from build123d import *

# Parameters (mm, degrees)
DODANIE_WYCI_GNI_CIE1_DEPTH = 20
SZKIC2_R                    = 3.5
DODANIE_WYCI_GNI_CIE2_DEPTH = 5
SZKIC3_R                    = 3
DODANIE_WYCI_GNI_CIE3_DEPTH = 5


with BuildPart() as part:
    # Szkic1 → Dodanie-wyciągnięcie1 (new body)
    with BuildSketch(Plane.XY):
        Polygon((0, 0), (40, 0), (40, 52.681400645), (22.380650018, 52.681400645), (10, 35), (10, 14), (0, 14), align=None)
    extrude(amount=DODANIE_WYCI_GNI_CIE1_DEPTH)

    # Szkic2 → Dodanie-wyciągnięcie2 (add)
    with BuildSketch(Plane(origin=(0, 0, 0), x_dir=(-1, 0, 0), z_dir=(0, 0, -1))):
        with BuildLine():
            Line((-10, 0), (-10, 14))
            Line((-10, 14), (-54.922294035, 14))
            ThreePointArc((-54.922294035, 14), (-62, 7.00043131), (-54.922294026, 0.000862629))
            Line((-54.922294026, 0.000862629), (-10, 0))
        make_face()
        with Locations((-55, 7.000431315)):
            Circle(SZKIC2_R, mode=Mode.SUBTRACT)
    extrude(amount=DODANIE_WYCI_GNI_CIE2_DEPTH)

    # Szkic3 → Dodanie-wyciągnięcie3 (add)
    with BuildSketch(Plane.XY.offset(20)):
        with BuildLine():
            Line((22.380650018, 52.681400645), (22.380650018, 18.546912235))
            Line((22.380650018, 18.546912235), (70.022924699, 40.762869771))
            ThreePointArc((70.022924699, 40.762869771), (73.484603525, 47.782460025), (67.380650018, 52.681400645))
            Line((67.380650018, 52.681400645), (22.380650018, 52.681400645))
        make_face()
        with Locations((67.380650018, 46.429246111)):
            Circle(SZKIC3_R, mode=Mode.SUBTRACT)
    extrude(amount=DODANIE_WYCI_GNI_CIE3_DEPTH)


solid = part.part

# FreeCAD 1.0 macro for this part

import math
import FreeCAD as App
import Part
import Sketcher
from FreeCAD import Vector
Q = App.Units.Quantity

doc = App.newDocument("Part")
body = doc.addObject("PartDesign::Body", "Body")

# Sketch on XY plane
sketch1 = body.newObject("Sketcher::SketchObject", "Sketch")
sketch1.AttachmentSupport = (doc.getObject("XY_Plane"), [""])
sketch1.MapMode = "FlatFace"
sketch1.addGeometry([
    Part.LineSegment(Vector(0, 0, 0), Vector(40, 0, 0)),  # 0
    Part.LineSegment(Vector(40, 0, 0), Vector(40, 52.681401, 0)),  # 1
    Part.LineSegment(Vector(40, 52.681401, 0), Vector(22.38065, 52.681401, 0)),  # 2
    Part.LineSegment(Vector(22.38065, 52.681401, 0), Vector(10, 35, 0)),  # 3
    Part.LineSegment(Vector(10, 35, 0), Vector(10, 14, 0)),  # 4
    Part.LineSegment(Vector(10, 14, 0), Vector(0, 14, 0)),  # 5
    Part.LineSegment(Vector(0, 14, 0), Vector(0, 0, 0)),  # 6
], False)
sketch1.addConstraint([
    Sketcher.Constraint("Coincident", 0, 2, 1, 1),
    Sketcher.Constraint("Coincident", 1, 2, 2, 1),
    Sketcher.Constraint("Coincident", 2, 2, 3, 1),
    Sketcher.Constraint("Coincident", 3, 2, 4, 1),
    Sketcher.Constraint("Coincident", 4, 2, 5, 1),
    Sketcher.Constraint("Coincident", 5, 2, 6, 1),
    Sketcher.Constraint("Coincident", 6, 2, 0, 1),
    Sketcher.Constraint("Horizontal", 0),
    Sketcher.Constraint("Vertical", 1),
    Sketcher.Constraint("Horizontal", 2),
    Sketcher.Constraint("Vertical", 4),
    Sketcher.Constraint("Horizontal", 5),
    Sketcher.Constraint("Vertical", 6),
    Sketcher.Constraint("Coincident", 6, 2, -1, 1),
    Sketcher.Constraint("DistanceX", 0, 1, 0, 2, 40.0),
    Sketcher.Constraint("DistanceX", 5, 2, 5, 1, 10.0),
    Sketcher.Constraint("DistanceY", 4, 2, 4, 1, 21.0),
    Sketcher.Constraint("DistanceY", 6, 2, 6, 1, 14.0),
    Sketcher.Constraint("Angle", 3, Q("-125 deg")),
    Sketcher.Constraint("DistanceY", 1, 1, 1, 2, 52.681401),
])
pad1 = body.newObject("PartDesign::Pad", "Pad")
pad1.Profile = sketch1
pad1.Length = 20

# Sketch on XY plane
sketch2 = body.newObject("Sketcher::SketchObject", "Sketch001")
sketch2.AttachmentSupport = (doc.getObject("XY_Plane"), [""])
sketch2.MapMode = "FlatFace"
sketch2.addGeometry([
    Part.LineSegment(Vector(10, 0, 0), Vector(10, 14, 0)),  # 0
    Part.LineSegment(Vector(10, 14, 0), Vector(54.922294, 14, 0)),  # 1
    Part.ArcOfCircle(Part.Circle(Vector(55, 7.000431, 0), Vector(0, 0, 1), 7), math.radians(-90.636045), math.radians(90.636045)),  # 2
    Part.LineSegment(Vector(54.922294, 0.000863, 0), Vector(10, 0, 0)),  # 3
    Part.Circle(Vector(55, 7.000431, 0), Vector(0, 0, 1), 3.5),  # 4
], False)
sketch2.addConstraint([
    Sketcher.Constraint("Coincident", 0, 2, 1, 1),
    Sketcher.Constraint("Coincident", 1, 2, 2, 2),
    Sketcher.Constraint("Coincident", 2, 1, 3, 1),
    Sketcher.Constraint("Coincident", 3, 2, 0, 1),
    Sketcher.Constraint("Vertical", 0),
    Sketcher.Constraint("Horizontal", 1),
    Sketcher.Constraint("Coincident", 4, 3, 2, 3),
    Sketcher.Constraint("PointOnObject", 3, 2, -1),
    Sketcher.Constraint("Vertical", 1, 2, 2, 1),
    Sketcher.Constraint("Diameter", 4, 7.0),
    Sketcher.Constraint("Radius", 2, 7.0),
    Sketcher.Constraint("DistanceY", 0, 1, 0, 2, 14.0),
    Sketcher.Constraint("DistanceX", -1, 1, 2, 3, 55.0),
    Sketcher.Constraint("DistanceX", -1, 1, 0, 2, 10.0),
    Sketcher.Constraint("DistanceX", 1, 1, 1, 2, 44.922294),
])
pad2 = body.newObject("PartDesign::Pad", "Pad001")
pad2.Profile = sketch2
pad2.Length = 5
pad2.Reversed = True

# Sketch on XY plane
sketch3 = body.newObject("Sketcher::SketchObject", "Sketch002")
sketch3.AttachmentSupport = (doc.getObject("XY_Plane"), [""])
sketch3.MapMode = "FlatFace"
sketch3.AttachmentOffset = App.Placement(Vector(0, 0, 20), App.Rotation())
sketch3.addGeometry([
    Part.LineSegment(Vector(22.38065, 52.681401, 0), Vector(22.38065, 18.546912, 0)),  # 0
    Part.LineSegment(Vector(22.38065, 18.546912, 0), Vector(70.022925, 40.76287, 0)),  # 1
    Part.ArcOfCircle(Part.Circle(Vector(67.38065, 46.429246, 0), Vector(0, 0, 1), 6.252155), math.radians(-65), math.radians(90)),  # 2
    Part.LineSegment(Vector(67.38065, 52.681401, 0), Vector(22.38065, 52.681401, 0)),  # 3
    Part.Circle(Vector(67.38065, 46.429246, 0), Vector(0, 0, 1), 3),  # 4
], False)
sketch3.addConstraint([
    Sketcher.Constraint("Coincident", 0, 2, 1, 1),
    Sketcher.Constraint("Tangent", 1, 2, 2, 1),
    Sketcher.Constraint("Tangent", 2, 2, 3, 1),
    Sketcher.Constraint("Coincident", 3, 2, 0, 1),
    Sketcher.Constraint("Vertical", 0),
    Sketcher.Constraint("Horizontal", 3),
    Sketcher.Constraint("Coincident", 4, 3, 2, 3),
    Sketcher.Constraint("Diameter", 4, 6.0),
    Sketcher.Constraint("DistanceX", 3, 2, 3, 1, 45.0),
    Sketcher.Constraint("Angle", 1, Q("25 deg")),
    Sketcher.Constraint("Radius", 2, 6.252155),
    Sketcher.Constraint("DistanceY", -1, 1, 2, 2, 52.681401),
    Sketcher.Constraint("DistanceX", -1, 1, 2, 3, 67.38065),
])
pad3 = body.newObject("PartDesign::Pad", "Pad002")
pad3.Profile = sketch3
pad3.Length = 5

doc.recompute()
